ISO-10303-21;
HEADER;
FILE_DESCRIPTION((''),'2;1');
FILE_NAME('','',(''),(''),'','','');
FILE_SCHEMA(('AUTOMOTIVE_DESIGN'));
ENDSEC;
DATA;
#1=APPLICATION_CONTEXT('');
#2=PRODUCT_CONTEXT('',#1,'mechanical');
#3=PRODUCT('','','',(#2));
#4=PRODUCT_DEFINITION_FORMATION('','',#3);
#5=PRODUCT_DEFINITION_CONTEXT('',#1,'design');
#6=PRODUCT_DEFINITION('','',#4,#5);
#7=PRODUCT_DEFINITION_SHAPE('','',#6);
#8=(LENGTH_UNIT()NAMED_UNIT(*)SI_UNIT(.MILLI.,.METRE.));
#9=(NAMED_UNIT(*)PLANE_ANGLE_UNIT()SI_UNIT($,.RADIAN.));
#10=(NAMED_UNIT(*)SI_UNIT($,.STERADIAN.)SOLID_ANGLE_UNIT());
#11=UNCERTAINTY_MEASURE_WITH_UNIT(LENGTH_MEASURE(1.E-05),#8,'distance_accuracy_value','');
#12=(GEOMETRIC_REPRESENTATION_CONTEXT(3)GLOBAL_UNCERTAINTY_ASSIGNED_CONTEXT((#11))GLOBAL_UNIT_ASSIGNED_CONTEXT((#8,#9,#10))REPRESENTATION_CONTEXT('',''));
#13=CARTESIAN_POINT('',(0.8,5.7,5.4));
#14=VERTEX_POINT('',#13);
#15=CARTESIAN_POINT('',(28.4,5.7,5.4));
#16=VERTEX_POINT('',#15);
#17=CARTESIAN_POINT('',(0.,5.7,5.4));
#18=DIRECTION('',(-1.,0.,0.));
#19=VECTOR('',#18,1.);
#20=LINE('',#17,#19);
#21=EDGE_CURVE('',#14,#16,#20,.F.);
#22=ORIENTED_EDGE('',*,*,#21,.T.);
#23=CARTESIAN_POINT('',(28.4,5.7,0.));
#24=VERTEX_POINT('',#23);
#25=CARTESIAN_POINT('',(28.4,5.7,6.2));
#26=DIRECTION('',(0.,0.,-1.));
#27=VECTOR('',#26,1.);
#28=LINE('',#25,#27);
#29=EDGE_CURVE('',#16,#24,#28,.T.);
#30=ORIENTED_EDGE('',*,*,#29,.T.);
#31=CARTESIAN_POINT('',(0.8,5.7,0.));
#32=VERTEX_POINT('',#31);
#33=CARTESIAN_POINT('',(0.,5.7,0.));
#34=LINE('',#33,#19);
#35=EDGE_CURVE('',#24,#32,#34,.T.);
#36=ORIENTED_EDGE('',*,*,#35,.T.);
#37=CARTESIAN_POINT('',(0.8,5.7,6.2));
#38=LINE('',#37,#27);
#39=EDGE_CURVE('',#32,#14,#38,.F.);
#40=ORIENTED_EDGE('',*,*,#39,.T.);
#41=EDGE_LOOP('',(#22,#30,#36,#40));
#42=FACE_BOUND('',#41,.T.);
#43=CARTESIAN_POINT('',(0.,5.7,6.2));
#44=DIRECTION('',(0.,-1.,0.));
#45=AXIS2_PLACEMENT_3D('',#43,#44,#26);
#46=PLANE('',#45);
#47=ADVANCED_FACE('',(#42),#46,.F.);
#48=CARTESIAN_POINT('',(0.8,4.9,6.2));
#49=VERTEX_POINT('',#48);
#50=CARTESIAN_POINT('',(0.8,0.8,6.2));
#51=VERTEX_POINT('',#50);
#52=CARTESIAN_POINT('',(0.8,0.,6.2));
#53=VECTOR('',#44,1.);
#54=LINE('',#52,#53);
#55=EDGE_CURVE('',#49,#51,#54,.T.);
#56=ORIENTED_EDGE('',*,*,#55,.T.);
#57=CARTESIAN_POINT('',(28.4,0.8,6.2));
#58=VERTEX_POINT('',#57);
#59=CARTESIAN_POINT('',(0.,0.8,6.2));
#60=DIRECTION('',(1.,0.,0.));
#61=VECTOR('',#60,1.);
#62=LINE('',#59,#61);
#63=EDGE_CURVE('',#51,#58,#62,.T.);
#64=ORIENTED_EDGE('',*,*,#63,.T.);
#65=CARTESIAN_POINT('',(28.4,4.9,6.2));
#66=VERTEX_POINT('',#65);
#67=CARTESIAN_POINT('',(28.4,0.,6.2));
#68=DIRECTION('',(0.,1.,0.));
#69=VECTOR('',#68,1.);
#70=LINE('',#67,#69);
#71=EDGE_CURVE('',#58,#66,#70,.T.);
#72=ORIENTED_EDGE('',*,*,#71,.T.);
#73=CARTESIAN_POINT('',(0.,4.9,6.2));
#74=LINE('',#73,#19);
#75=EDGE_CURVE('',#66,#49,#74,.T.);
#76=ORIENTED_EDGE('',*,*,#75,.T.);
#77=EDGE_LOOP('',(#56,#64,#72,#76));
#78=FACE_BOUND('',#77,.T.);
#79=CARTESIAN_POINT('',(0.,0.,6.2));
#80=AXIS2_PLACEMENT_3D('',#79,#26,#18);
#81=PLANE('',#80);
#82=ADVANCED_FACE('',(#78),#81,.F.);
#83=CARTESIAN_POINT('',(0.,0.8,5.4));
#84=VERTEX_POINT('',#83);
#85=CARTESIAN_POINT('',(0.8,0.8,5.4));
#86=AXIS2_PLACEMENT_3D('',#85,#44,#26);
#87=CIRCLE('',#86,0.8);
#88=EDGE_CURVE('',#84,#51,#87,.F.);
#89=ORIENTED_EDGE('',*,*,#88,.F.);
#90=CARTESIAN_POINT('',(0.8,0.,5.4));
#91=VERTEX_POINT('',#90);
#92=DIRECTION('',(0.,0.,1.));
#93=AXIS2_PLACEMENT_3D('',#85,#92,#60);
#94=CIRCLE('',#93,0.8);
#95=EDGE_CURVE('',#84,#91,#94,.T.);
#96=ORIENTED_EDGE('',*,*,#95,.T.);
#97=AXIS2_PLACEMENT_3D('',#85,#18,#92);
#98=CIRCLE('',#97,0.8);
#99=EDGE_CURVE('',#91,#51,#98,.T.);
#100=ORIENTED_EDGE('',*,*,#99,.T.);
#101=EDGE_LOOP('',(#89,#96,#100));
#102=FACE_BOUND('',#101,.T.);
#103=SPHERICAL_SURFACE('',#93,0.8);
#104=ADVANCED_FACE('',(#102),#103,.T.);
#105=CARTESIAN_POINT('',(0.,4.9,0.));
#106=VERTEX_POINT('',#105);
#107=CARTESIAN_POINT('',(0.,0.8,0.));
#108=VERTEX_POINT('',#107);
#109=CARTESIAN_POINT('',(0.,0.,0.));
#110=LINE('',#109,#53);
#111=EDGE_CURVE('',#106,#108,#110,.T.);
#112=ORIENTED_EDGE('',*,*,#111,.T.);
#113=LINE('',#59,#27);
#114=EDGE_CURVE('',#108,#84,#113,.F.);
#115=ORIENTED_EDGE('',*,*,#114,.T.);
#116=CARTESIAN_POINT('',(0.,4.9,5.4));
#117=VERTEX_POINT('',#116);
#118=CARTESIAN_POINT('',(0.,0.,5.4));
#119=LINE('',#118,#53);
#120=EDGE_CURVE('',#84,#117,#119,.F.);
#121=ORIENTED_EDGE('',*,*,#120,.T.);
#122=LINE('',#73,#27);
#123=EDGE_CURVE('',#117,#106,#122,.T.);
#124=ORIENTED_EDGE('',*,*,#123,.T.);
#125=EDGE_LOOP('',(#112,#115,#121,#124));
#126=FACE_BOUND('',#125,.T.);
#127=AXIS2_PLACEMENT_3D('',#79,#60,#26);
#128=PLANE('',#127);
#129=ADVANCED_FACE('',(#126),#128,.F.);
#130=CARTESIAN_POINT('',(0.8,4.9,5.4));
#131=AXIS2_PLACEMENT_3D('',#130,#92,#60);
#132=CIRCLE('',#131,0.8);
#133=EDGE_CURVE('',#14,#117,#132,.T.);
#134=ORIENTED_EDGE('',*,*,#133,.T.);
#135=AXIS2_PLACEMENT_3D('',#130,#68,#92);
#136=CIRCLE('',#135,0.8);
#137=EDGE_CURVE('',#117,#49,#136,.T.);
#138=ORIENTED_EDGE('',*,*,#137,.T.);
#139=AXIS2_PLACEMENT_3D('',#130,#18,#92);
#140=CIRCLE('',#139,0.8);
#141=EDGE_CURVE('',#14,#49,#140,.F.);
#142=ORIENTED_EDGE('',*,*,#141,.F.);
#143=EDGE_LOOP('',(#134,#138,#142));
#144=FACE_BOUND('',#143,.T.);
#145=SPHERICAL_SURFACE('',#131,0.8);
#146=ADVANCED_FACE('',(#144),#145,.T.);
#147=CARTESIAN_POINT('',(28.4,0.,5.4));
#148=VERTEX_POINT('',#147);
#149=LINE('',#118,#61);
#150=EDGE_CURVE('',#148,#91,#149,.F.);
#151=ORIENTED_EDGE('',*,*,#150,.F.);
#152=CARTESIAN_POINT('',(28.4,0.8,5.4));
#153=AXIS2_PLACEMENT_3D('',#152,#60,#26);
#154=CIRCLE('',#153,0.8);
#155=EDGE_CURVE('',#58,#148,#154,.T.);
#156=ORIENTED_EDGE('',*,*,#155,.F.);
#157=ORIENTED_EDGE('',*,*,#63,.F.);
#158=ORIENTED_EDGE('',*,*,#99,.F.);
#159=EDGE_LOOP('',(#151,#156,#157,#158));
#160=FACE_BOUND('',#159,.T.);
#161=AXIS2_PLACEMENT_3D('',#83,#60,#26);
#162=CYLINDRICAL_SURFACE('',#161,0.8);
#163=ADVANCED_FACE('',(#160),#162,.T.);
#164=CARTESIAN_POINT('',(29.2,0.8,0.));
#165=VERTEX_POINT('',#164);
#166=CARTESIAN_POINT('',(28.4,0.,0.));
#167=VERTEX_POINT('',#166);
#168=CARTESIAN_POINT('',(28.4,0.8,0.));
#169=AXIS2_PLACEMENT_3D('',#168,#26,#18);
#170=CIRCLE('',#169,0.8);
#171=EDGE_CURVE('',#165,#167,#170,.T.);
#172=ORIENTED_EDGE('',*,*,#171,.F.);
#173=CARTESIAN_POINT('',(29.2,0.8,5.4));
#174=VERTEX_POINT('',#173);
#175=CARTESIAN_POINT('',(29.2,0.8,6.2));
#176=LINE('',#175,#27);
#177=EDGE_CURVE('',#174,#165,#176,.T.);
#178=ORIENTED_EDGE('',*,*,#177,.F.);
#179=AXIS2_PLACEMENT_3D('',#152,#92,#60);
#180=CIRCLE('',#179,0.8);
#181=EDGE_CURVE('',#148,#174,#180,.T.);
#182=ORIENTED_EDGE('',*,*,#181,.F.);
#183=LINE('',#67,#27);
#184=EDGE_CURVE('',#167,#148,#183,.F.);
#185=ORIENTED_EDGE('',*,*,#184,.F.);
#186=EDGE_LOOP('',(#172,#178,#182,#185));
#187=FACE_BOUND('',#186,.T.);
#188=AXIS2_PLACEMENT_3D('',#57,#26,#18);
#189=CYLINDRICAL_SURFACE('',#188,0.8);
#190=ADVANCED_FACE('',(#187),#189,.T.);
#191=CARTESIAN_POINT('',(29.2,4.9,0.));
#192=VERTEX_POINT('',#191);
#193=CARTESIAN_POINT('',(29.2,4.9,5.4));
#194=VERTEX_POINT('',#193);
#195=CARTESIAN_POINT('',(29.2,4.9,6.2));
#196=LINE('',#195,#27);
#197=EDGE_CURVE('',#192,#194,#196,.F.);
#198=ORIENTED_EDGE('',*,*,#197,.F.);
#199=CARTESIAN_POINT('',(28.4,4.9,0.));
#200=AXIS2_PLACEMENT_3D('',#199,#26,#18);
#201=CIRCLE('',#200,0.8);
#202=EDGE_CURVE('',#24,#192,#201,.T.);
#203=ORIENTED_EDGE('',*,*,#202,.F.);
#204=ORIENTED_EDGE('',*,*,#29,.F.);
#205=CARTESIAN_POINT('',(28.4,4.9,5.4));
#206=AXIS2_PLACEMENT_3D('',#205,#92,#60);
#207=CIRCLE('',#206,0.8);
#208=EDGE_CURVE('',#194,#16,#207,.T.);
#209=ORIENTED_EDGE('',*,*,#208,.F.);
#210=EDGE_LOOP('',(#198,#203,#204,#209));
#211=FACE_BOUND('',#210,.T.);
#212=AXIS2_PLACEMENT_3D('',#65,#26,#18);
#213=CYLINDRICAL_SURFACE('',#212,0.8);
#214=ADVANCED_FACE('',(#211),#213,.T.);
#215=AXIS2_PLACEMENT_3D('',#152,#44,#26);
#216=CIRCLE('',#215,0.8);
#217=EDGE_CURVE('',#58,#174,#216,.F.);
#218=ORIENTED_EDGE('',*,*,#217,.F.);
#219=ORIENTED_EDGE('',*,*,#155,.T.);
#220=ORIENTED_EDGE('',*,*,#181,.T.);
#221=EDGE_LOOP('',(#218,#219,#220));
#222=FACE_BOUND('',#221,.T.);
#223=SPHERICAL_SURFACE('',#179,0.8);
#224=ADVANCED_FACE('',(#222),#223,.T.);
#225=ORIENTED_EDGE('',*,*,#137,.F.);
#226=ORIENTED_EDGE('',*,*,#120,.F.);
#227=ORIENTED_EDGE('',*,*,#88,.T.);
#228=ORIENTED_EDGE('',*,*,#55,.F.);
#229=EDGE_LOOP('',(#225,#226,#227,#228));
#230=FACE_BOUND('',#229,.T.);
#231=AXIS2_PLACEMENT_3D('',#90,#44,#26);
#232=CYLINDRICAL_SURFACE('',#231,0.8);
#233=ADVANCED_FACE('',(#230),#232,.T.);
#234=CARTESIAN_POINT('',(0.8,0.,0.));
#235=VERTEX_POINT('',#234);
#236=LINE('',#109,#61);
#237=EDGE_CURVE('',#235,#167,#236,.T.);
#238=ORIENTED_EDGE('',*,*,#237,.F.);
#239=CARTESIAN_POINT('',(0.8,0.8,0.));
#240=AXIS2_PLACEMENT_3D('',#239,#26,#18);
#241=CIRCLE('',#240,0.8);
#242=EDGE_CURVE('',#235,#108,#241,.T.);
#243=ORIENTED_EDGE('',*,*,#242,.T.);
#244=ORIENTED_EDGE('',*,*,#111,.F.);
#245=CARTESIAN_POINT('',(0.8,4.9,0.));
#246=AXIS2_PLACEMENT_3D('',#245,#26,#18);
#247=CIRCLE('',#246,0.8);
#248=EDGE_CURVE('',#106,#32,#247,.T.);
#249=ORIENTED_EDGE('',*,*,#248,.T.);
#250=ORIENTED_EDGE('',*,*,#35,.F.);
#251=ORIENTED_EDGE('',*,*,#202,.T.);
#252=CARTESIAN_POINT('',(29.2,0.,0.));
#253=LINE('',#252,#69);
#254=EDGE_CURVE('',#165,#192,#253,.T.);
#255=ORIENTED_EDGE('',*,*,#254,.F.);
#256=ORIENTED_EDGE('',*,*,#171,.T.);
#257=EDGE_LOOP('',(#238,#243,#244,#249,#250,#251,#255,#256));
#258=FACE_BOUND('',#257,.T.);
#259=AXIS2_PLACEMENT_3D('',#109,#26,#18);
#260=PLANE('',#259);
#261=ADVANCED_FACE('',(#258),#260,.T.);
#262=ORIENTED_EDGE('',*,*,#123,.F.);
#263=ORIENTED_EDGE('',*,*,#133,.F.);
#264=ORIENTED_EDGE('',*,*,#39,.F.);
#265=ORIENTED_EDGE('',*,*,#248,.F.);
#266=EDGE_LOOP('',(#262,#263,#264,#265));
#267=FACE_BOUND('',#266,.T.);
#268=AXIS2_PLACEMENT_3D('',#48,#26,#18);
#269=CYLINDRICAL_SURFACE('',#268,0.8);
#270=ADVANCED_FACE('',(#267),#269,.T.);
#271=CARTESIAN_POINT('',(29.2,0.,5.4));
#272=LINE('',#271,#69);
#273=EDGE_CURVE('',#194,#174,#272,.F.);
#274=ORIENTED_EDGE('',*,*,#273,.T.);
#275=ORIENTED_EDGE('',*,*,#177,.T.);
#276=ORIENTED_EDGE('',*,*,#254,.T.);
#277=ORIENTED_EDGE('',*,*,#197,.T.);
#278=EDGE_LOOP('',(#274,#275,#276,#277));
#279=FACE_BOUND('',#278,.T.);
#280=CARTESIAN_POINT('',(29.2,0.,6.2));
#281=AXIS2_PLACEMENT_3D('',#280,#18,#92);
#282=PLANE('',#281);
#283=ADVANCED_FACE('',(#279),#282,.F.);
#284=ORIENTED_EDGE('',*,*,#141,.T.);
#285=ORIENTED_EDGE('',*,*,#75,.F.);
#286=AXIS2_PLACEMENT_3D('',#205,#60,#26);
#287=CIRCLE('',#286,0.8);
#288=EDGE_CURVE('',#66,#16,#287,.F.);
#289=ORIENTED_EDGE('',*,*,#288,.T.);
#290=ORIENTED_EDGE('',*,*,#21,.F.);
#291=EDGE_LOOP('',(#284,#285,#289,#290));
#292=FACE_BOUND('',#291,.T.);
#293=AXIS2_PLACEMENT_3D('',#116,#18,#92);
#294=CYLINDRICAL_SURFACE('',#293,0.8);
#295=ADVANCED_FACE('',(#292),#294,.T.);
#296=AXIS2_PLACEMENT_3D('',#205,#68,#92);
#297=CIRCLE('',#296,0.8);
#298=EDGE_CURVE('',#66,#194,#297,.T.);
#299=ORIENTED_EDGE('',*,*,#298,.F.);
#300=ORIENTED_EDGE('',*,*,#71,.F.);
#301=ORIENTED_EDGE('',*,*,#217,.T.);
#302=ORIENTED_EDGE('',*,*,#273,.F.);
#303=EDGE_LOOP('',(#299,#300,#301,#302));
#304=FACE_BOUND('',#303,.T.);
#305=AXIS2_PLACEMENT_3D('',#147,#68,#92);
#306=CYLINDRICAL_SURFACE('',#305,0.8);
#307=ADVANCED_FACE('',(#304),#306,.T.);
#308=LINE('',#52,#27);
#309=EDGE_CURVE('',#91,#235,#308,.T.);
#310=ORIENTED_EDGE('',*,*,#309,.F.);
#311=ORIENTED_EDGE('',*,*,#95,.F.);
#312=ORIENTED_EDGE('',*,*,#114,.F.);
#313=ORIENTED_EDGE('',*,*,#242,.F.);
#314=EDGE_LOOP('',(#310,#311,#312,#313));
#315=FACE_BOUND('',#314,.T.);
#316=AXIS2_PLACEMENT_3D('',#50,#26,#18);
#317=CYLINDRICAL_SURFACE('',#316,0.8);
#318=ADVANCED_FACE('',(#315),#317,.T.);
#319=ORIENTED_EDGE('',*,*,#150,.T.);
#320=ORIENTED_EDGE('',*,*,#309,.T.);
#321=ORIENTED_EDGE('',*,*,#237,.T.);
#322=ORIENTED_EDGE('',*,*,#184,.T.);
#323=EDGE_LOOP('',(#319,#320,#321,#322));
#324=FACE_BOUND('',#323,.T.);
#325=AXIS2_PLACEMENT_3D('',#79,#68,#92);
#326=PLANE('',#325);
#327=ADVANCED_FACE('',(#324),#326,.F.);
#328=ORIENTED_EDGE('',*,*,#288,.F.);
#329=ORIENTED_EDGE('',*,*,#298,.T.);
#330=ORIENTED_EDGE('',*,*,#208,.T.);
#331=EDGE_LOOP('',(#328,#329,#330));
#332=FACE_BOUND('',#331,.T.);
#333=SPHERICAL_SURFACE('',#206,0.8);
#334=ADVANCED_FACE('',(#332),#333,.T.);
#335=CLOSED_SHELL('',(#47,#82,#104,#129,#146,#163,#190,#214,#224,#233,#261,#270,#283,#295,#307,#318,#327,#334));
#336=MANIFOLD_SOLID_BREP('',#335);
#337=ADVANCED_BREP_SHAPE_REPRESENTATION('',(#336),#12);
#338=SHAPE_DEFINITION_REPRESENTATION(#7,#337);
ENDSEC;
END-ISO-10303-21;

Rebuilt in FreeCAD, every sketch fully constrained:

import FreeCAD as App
import Part
import Sketcher

V = App.Vector


def edges_at(feature, points):
    """Names of the edges that pass closest to the given points."""
    edges = feature.Shape.Edges
    near = lambda p: min(range(len(edges)), key=lambda i: edges[i].distToShape(Part.Vertex(*p))[0])
    return sorted({f"Edge{near(p) + 1}" for p in points})

doc = App.newDocument("Part")
body = doc.addObject("PartDesign::Body", "Body")

sketch1 = body.newObject("Sketcher::SketchObject", "Sketch")
sketch1.AttachmentSupport = (doc.getObject("XY_Plane"), [""])
sketch1.MapMode = "FlatFace"
sketch1.addGeometry([
    Part.LineSegment(V(0, 5.7, 0), V(0, 0, 0)),
    Part.LineSegment(V(0, 0, 0), V(29.2, 0, 0)),
    Part.LineSegment(V(29.2, 0, 0), V(29.2, 5.7, 0)),
    Part.LineSegment(V(29.2, 5.7, 0), V(0, 5.7, 0)),
], False)
sketch1.addConstraint([
    Sketcher.Constraint("Coincident", 0, 2, 1, 1),
    Sketcher.Constraint("Coincident", 1, 2, 2, 1),
    Sketcher.Constraint("Coincident", 2, 2, 3, 1),
    Sketcher.Constraint("Coincident", 3, 2, 0, 1),
    Sketcher.Constraint("Vertical", 0),
    Sketcher.Constraint("Horizontal", 1),
    Sketcher.Constraint("Vertical", 2),
    Sketcher.Constraint("Horizontal", 3),
    Sketcher.Constraint("Coincident", 0, 2, -1, 1),
    Sketcher.Constraint("DistanceX", 1, 1, 1, 2, 29.2),
    Sketcher.Constraint("DistanceY", 0, 2, 0, 1, 5.7),
])
pad1 = body.newObject("PartDesign::Pad", "Pad")
pad1.Profile = sketch1
pad1.Length = 6.2
doc.recompute()

fillet = body.newObject("PartDesign::Fillet", "Fillet")
fillet.Base = (pad1, edges_at(pad1, [
    (29.2, 2.85, 6.2),
    (14.6, 5.7, 6.2),
    (0, 2.85, 6.2),
    (14.6, 0, 6.2),
    (0, 5.7, 3.1),
    (29.2, 5.7, 3.1),
    (29.2, 0, 3.1),
    (0, 0, 3.1),
]))
fillet.Radius = 0.8

doc.recompute()
